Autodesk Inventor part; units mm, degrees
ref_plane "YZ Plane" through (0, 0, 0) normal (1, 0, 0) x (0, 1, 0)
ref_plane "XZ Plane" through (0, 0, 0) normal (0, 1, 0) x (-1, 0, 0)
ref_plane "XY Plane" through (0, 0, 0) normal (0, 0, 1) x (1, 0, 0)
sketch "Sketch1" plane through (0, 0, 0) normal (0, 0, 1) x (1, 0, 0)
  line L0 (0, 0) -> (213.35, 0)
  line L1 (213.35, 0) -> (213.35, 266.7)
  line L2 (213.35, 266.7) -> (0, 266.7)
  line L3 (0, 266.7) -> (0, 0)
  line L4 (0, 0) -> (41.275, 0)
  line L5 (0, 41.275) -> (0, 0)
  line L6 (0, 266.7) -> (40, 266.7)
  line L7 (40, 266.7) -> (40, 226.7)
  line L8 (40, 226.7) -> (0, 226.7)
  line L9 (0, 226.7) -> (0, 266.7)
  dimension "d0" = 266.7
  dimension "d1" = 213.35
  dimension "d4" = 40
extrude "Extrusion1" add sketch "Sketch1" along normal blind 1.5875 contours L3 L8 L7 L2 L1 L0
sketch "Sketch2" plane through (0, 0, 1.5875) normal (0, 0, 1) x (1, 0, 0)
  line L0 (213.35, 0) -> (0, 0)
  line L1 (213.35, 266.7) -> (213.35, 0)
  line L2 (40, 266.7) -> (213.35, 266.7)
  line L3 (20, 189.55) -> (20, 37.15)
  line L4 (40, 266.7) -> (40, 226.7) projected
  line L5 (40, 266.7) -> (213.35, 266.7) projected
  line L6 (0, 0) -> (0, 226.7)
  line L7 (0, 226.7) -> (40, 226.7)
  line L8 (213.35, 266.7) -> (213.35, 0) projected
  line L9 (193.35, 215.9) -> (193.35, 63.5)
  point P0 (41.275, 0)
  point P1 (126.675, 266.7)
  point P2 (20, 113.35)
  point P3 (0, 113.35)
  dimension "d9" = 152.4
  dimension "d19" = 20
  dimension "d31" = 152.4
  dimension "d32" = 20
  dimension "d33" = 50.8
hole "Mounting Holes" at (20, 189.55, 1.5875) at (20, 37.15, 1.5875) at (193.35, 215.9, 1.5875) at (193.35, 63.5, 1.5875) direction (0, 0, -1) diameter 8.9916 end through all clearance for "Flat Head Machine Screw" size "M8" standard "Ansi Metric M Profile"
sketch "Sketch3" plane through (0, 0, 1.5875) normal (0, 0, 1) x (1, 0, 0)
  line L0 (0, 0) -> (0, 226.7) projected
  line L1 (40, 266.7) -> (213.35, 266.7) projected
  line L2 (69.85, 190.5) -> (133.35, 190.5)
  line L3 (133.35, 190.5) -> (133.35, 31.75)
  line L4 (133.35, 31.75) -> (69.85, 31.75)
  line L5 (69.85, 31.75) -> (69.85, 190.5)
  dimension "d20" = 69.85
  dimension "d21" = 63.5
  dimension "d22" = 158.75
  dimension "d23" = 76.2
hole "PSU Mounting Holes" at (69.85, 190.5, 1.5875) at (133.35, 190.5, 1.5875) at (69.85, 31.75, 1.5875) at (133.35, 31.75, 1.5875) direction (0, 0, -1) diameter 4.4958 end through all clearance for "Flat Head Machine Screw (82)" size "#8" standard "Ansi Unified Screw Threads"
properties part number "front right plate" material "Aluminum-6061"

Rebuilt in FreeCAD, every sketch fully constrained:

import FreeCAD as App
import Part
import Sketcher
Q = App.Units.Quantity

doc = App.newDocument("Part")
body = doc.addObject("PartDesign::Body", "Body")

# Sketch on XY plane
sketch1 = doc.addObject("Sketcher::SketchObject", "Sketch")
body.addObject(sketch1)
sketch1.AttachmentSupport = (doc.XY_Plane, [""])
sketch1.MapMode = "FlatFace"
sketch1.addGeometry(Part.LineSegment(App.Vector(0, 227, 0), App.Vector(0, 0, 0)), False)
sketch1.addGeometry(Part.LineSegment(App.Vector(0, 0, 0), App.Vector(213, 0, 0)), False)
sketch1.addGeometry(Part.LineSegment(App.Vector(213, 0, 0), App.Vector(213, 267, 0)), False)
sketch1.addGeometry(Part.LineSegment(App.Vector(213, 267, 0), App.Vector(40, 267, 0)), False)
sketch1.addGeometry(Part.LineSegment(App.Vector(40, 267, 0), App.Vector(40, 227, 0)), False)
sketch1.addGeometry(Part.LineSegment(App.Vector(40, 227, 0), App.Vector(0, 227, 0)), False)
sketch1.addConstraint(Sketcher.Constraint("Coincident", 0, 2, 1, 1))
sketch1.addConstraint(Sketcher.Constraint("Coincident", 1, 2, 2, 1))
sketch1.addConstraint(Sketcher.Constraint("Coincident", 2, 2, 3, 1))
sketch1.addConstraint(Sketcher.Constraint("Coincident", 3, 2, 4, 1))
sketch1.addConstraint(Sketcher.Constraint("Coincident", 4, 2, 5, 1))
sketch1.addConstraint(Sketcher.Constraint("Coincident", 5, 2, 0, 1))
sketch1.addConstraint(Sketcher.Constraint("Vertical", 0))
sketch1.addConstraint(Sketcher.Constraint("Horizontal", 1))
sketch1.addConstraint(Sketcher.Constraint("Vertical", 2))
sketch1.addConstraint(Sketcher.Constraint("Horizontal", 3))
sketch1.addConstraint(Sketcher.Constraint("Vertical", 4))
sketch1.addConstraint(Sketcher.Constraint("Horizontal", 5))
sketch1.addConstraint(Sketcher.Constraint("Coincident", 0, 2, -1, 1))
sketch1.addConstraint(Sketcher.Constraint("Equal", 5, 4))
sketch1.addConstraint(Sketcher.Constraint("DistanceY", 2, 1, 2, 2, Q("10.5 in")))
sketch1.addConstraint(Sketcher.Constraint("DistanceX", 1, 1, 1, 2, Q("8.3996 in")))
sketch1.addConstraint(Sketcher.Constraint("DistanceX", 5, 2, 5, 1, Q("1.5748 in")))
pad1 = doc.addObject("PartDesign::Pad", "Pad")
body.addObject(pad1)
pad1.Profile = sketch1
pad1.Length = Q("0.0625 in")

# Sketch on XY plane
sketch2 = doc.addObject("Sketcher::SketchObject", "Sketch001")
body.addObject(sketch2)
sketch2.AttachmentSupport = (doc.XY_Plane, [""])
sketch2.MapMode = "FlatFace"
sketch2.AttachmentOffset = App.Placement(App.Vector(0, 0, 0.0625 * 25.4), App.Rotation())
sketch2.addGeometry(Part.Circle(App.Vector(20, 189.6, 0), App.Vector(0, 0, 1), 4.5), False)
sketch2.addGeometry(Part.Circle(App.Vector(20, 37.1, 0), App.Vector(0, 0, 1), 4.5), False)
sketch2.addGeometry(Part.Circle(App.Vector(193.3, 215.9, 0), App.Vector(0, 0, 1), 4.5), False)
sketch2.addGeometry(Part.Circle(App.Vector(193.3, 63.5, 0), App.Vector(0, 0, 1), 4.5), False)
sketch2.addConstraint(Sketcher.Constraint("Equal", 0, 1))
sketch2.addConstraint(Sketcher.Constraint("Equal", 1, 2))
sketch2.addConstraint(Sketcher.Constraint("Equal", 2, 3))
sketch2.addConstraint(Sketcher.Constraint("Vertical", 0, 3, 1, 3))
sketch2.addConstraint(Sketcher.Constraint("Vertical", 2, 3, 3, 3))
sketch2.addConstraint(Sketcher.Constraint("Diameter", 0, Q("0.354 in")))
sketch2.addConstraint(Sketcher.Constraint("DistanceY", 1, 3, 0, 3, Q("6 in")))
sketch2.addConstraint(Sketcher.Constraint("DistanceY", 3, 3, 2, 3, Q("6 in")))
sketch2.addConstraint(Sketcher.Constraint("DistanceY", -1, 1, 2, 3, Q("8.5 in")))
sketch2.addConstraint(Sketcher.Constraint("DistanceX", -1, 1, 0, 3, Q("0.7874 in")))
sketch2.addConstraint(Sketcher.Constraint("DistanceY", -1, 1, 0, 3, Q("7.4626 in")))
sketch2.addConstraint(Sketcher.Constraint("DistanceX", -1, 1, 2, 3, Q("7.6122 in")))
doc.recompute()
hole = doc.addObject("PartDesign::Hole", "Hole")
body.addObject(hole)
hole.Profile = sketch2
hole.ThreadType = "None"
hole.Diameter = Q("0.354 in")
hole.DepthType = "ThroughAll"

# Sketch on XY plane
sketch3 = doc.addObject("Sketcher::SketchObject", "Sketch002")
body.addObject(sketch3)
sketch3.AttachmentSupport = (doc.XY_Plane, [""])
sketch3.MapMode = "FlatFace"
sketch3.AttachmentOffset = App.Placement(App.Vector(0, 0, 0.0625 * 25.4), App.Rotation())
sketch3.addGeometry(Part.Circle(App.Vector(69.8, 190.5, 0), App.Vector(0, 0, 1), 2.2), False)
sketch3.addGeometry(Part.Circle(App.Vector(133.3, 190.5, 0), App.Vector(0, 0, 1), 2.2), False)
sketch3.addGeometry(Part.Circle(App.Vector(69.8, 31.8, 0), App.Vector(0, 0, 1), 2.2), False)
sketch3.addGeometry(Part.Circle(App.Vector(133.3, 31.8, 0), App.Vector(0, 0, 1), 2.2), False)
sketch3.addConstraint(Sketcher.Constraint("Equal", 0, 1))
sketch3.addConstraint(Sketcher.Constraint("Equal", 1, 2))
sketch3.addConstraint(Sketcher.Constraint("Equal", 2, 3))
sketch3.addConstraint(Sketcher.Constraint("Horizontal", 0, 3, 1, 3))
sketch3.addConstraint(Sketcher.Constraint("Horizontal", 2, 3, 3, 3))
sketch3.addConstraint(Sketcher.Constraint("Vertical", 0, 3, 2, 3))
sketch3.addConstraint(Sketcher.Constraint("Vertical", 1, 3, 3, 3))
sketch3.addConstraint(Sketcher.Constraint("Diameter", 0, Q("0.177 in")))
sketch3.addConstraint(Sketcher.Constraint("DistanceY", -1, 1, 0, 3, Q("7.5 in")))
sketch3.addConstraint(Sketcher.Constraint("DistanceX", 0, 3, 1, 3, Q("2.5 in")))
sketch3.addConstraint(Sketcher.Constraint("DistanceX", -1, 1, 0, 3, Q("2.75 in")))
sketch3.addConstraint(Sketcher.Constraint("DistanceY", -1, 1, 2, 3, Q("1.25 in")))
doc.recompute()
hole2 = doc.addObject("PartDesign::Hole", "Hole001")
body.addObject(hole2)
hole2.Profile = sketch3
hole2.ThreadType = "None"
hole2.Diameter = Q("0.177 in")
hole2.DepthType = "ThroughAll"

doc.recompute()
